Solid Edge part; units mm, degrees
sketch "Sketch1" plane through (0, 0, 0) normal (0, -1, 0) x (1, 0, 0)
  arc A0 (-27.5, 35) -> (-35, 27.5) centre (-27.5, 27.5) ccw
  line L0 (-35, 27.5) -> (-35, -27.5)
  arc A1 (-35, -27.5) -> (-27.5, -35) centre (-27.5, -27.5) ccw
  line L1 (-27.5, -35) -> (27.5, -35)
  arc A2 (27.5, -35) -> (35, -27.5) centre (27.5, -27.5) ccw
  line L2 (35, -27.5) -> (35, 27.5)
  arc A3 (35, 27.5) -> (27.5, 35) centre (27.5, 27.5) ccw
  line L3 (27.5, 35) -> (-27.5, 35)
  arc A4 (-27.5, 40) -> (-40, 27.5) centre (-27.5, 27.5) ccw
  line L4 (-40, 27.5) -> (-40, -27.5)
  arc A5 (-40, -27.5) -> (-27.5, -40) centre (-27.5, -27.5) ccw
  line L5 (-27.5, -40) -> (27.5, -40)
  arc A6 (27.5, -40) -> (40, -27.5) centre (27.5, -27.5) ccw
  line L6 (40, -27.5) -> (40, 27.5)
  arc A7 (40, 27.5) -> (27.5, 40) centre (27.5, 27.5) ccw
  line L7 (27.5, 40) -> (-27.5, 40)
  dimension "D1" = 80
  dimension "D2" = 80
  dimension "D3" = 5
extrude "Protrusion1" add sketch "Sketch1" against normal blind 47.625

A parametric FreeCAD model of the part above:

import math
import FreeCAD as App
import Part
import Sketcher

V = App.Vector

doc = App.newDocument("Part")
body = doc.addObject("PartDesign::Body", "Body")

# Sketch on XZ plane
sketch1 = body.newObject("Sketcher::SketchObject", "Sketch")
sketch1.AttachmentSupport = (doc.getObject("XZ_Plane"), [""])
sketch1.MapMode = "FlatFace"
sketch1.addGeometry(Part.LineSegment(V(27.5, 40, 0), V(-27.5, 40, 0)), False)
sketch1.addGeometry(Part.ArcOfCircle(Part.Circle(V(-27.5, 27.5, 0), V(0, 0, 1), 12.5), math.radians(90), math.radians(180)), False)
sketch1.addGeometry(Part.LineSegment(V(-40, 27.5, 0), V(-40, -27.5, 0)), False)
sketch1.addGeometry(Part.ArcOfCircle(Part.Circle(V(-27.5, -27.5, 0), V(0, 0, 1), 12.5), math.radians(180), math.radians(270)), False)
sketch1.addGeometry(Part.LineSegment(V(-27.5, -40, 0), V(27.5, -40, 0)), False)
sketch1.addGeometry(Part.ArcOfCircle(Part.Circle(V(27.5, -27.5, 0), V(0, 0, 1), 12.5), math.radians(-90), math.radians(0)), False)
sketch1.addGeometry(Part.LineSegment(V(40, -27.5, 0), V(40, 27.5, 0)), False)
sketch1.addGeometry(Part.ArcOfCircle(Part.Circle(V(27.5, 27.5, 0), V(0, 0, 1), 12.5), math.radians(0), math.radians(90)), False)
sketch1.addGeometry(Part.ArcOfCircle(Part.Circle(V(-27.5, 27.5, 0), V(0, 0, 1), 7.5), math.radians(90), math.radians(180)), False)
sketch1.addGeometry(Part.LineSegment(V(-27.5, 35, 0), V(27.5, 35, 0)), False)
sketch1.addGeometry(Part.ArcOfCircle(Part.Circle(V(27.5, 27.5, 0), V(0, 0, 1), 7.5), math.radians(0), math.radians(90)), False)
sketch1.addGeometry(Part.LineSegment(V(35, 27.5, 0), V(35, -27.5, 0)), False)
sketch1.addGeometry(Part.ArcOfCircle(Part.Circle(V(27.5, -27.5, 0), V(0, 0, 1), 7.5), math.radians(-90), math.radians(0)), False)
sketch1.addGeometry(Part.LineSegment(V(27.5, -35, 0), V(-27.5, -35, 0)), False)
sketch1.addGeometry(Part.ArcOfCircle(Part.Circle(V(-27.5, -27.5, 0), V(0, 0, 1), 7.5), math.radians(180), math.radians(270)), False)
sketch1.addGeometry(Part.LineSegment(V(-35, -27.5, 0), V(-35, 27.5, 0)), False)
sketch1.addConstraint(Sketcher.Constraint("Tangent", 0, 2, 1, 1))
sketch1.addConstraint(Sketcher.Constraint("Tangent", 1, 2, 2, 1))
sketch1.addConstraint(Sketcher.Constraint("Tangent", 2, 2, 3, 1))
sketch1.addConstraint(Sketcher.Constraint("Tangent", 3, 2, 4, 1))
sketch1.addConstraint(Sketcher.Constraint("Tangent", 4, 2, 5, 1))
sketch1.addConstraint(Sketcher.Constraint("Tangent", 5, 2, 6, 1))
sketch1.addConstraint(Sketcher.Constraint("Tangent", 6, 2, 7, 1))
sketch1.addConstraint(Sketcher.Constraint("Tangent", 7, 2, 0, 1))
sketch1.addConstraint(Sketcher.Constraint("Tangent", 8, 1, 9, 1))
sketch1.addConstraint(Sketcher.Constraint("Tangent", 9, 2, 10, 2))
sketch1.addConstraint(Sketcher.Constraint("Tangent", 10, 1, 11, 1))
sketch1.addConstraint(Sketcher.Constraint("Tangent", 11, 2, 12, 2))
sketch1.addConstraint(Sketcher.Constraint("Tangent", 12, 1, 13, 1))
sketch1.addConstraint(Sketcher.Constraint("Tangent", 13, 2, 14, 2))
sketch1.addConstraint(Sketcher.Constraint("Tangent", 14, 1, 15, 1))
sketch1.addConstraint(Sketcher.Constraint("Tangent", 15, 2, 8, 2))
sketch1.addConstraint(Sketcher.Constraint("Horizontal", 0))
sketch1.addConstraint(Sketcher.Constraint("Vertical", 2))
sketch1.addConstraint(Sketcher.Constraint("Horizontal", 4))
sketch1.addConstraint(Sketcher.Constraint("Vertical", 6))
sketch1.addConstraint(Sketcher.Constraint("Horizontal", 9))
sketch1.addConstraint(Sketcher.Constraint("Vertical", 11))
sketch1.addConstraint(Sketcher.Constraint("Horizontal", 13))
sketch1.addConstraint(Sketcher.Constraint("Vertical", 15))
sketch1.addConstraint(Sketcher.Constraint("Coincident", 8, 3, 1, 3))
sketch1.addConstraint(Sketcher.Constraint("Coincident", 10, 3, 7, 3))
sketch1.addConstraint(Sketcher.Constraint("Coincident", 12, 3, 5, 3))
sketch1.addConstraint(Sketcher.Constraint("Equal", 1, 3))
sketch1.addConstraint(Sketcher.Constraint("Equal", 3, 5))
sketch1.addConstraint(Sketcher.Constraint("Equal", 5, 7))
sketch1.addConstraint(Sketcher.Constraint("Equal", 12, 14))
sketch1.addConstraint(Sketcher.Constraint("Symmetric", 1, 3, 5, 3, -1, 1))
sketch1.addConstraint(Sketcher.Constraint("Equal", 13, 2))
sketch1.addConstraint(Sketcher.Constraint("Radius", 1, 12.5))
sketch1.addConstraint(Sketcher.Constraint("Radius", 8, 7.5))
sketch1.addConstraint(Sketcher.Constraint("DistanceX", 0, 2, 0, 1, 55.0))
pad1 = body.newObject("PartDesign::Pad", "Pad")
pad1.Profile = sketch1
pad1.Length = 47.625
pad1.Reversed = True

doc.recompute()
